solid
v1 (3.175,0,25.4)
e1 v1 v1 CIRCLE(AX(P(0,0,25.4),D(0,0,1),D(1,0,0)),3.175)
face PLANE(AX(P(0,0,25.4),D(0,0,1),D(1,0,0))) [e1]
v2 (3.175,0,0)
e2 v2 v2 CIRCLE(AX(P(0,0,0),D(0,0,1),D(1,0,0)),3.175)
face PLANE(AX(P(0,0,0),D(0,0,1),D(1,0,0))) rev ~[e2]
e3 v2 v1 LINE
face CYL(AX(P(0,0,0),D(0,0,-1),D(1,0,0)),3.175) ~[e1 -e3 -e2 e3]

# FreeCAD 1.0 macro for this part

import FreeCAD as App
import Part
import Sketcher
Q = App.Units.Quantity

doc = App.newDocument("Part")
params = doc.addObject("Spreadsheet::Sheet", "Params")
for row, (alias, value) in enumerate([
    ("sketch1_diameter", "0.25 in"),
    ("pad1_length", "1 in"),
], start=1):
    params.set(f"A{row}", alias)
    params.set(f"B{row}", "=" + value)
    params.setAlias(f"B{row}", alias)

body = doc.addObject("PartDesign::Body", "Body")

sketch1 = body.newObject("Sketcher::SketchObject", "Sketch")
sketch1.AttachmentSupport = (doc.getObject("XY_Plane"), [""])
sketch1.MapMode = "FlatFace"
sketch1.addGeometry(Part.Circle(App.Vector(0, 0, 0), App.Vector(0, 0, 1), 3.175), False)
sketch1.addConstraint(Sketcher.Constraint("Coincident", 0, 3, -1, 1))
sketch1.addConstraint(Sketcher.Constraint("Diameter", 0, Q("0.25 in")))
sketch1.setExpression("Constraints[1]", "Params.sketch1_diameter")
pad1 = body.newObject("PartDesign::Pad", "Pad")
pad1.Profile = sketch1
pad1.setExpression("Length", "Params.pad1_length")

doc.recompute()
